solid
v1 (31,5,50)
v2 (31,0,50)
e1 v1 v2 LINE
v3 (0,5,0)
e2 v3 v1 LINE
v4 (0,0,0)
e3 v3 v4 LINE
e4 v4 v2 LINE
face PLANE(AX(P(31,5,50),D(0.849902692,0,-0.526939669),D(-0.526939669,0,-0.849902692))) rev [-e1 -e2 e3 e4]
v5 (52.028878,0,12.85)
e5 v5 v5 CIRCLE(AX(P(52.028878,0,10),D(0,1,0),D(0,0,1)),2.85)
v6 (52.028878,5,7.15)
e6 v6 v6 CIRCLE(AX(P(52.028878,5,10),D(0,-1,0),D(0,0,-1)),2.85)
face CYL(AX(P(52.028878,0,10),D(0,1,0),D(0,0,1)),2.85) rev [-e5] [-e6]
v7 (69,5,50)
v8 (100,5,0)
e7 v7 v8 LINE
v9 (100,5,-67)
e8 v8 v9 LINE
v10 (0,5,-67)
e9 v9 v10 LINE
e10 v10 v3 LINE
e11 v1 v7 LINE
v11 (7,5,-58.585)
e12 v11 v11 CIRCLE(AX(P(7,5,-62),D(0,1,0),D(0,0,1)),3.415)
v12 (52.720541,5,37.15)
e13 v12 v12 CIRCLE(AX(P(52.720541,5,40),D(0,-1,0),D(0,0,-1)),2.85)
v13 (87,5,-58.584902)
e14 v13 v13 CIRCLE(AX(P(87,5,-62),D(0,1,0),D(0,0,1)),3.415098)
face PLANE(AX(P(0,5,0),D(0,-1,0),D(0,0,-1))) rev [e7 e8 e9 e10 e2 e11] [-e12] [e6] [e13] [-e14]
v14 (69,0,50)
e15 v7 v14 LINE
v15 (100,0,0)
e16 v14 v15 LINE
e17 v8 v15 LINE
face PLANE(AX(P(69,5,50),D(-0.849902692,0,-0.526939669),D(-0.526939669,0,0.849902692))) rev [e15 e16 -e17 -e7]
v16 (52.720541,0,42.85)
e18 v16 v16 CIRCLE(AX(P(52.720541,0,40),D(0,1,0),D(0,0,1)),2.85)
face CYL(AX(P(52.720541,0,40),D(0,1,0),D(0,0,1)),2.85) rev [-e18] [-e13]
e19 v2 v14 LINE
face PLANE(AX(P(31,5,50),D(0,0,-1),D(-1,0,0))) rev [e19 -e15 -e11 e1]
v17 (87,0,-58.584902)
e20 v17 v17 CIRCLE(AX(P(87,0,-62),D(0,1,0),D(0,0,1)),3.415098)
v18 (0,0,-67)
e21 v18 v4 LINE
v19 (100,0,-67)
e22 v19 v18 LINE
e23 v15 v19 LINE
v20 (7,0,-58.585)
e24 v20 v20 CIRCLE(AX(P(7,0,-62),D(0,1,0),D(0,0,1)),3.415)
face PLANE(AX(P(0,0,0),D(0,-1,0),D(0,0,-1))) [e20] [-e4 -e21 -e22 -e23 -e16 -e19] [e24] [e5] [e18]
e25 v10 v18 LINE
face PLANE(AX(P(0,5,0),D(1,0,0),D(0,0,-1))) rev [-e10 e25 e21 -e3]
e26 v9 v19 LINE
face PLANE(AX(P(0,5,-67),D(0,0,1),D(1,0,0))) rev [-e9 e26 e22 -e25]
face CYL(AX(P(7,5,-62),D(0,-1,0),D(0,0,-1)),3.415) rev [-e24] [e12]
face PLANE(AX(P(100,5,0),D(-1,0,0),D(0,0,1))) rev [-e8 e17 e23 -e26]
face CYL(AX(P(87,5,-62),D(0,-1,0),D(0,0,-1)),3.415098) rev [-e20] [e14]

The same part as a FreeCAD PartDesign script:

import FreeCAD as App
import Part
import Sketcher


def add_polygon(sketch, points):
    """Adds a closed chain of lines whose ends are joined by coincident constraints."""
    first, n = sketch.GeometryCount, len(points)
    for a, b in zip(points, points[1:] + points[:1]):
        sketch.addGeometry(Part.LineSegment(App.Vector(*a, 0), App.Vector(*b, 0)), False)
    for i in range(n):
        sketch.addConstraint(Sketcher.Constraint("Coincident", first + i, 2, first + (i + 1) % n, 1))

doc = App.newDocument("Part")
params = doc.addObject("Spreadsheet::Sheet", "Params")
for row, (alias, value) in enumerate([
    ("sketch1_diameter", "6.83 mm"),
    ("sketch1_width", "38 mm"),
    ("sketch1_width2", "100 mm"),
    ("sketch1_height", "67 mm"),
    ("pad1_length", "5 mm"),
    ("sketch2_diameter", "5.7 mm"),
], start=1):
    params.set(f"A{row}", alias)
    params.set(f"B{row}", "=" + value)
    params.setAlias(f"B{row}", alias)

body = doc.addObject("PartDesign::Body", "Body")

# Sketch on XZ plane
sketch1 = body.newObject("Sketcher::SketchObject", "Sketch")
sketch1.AttachmentSupport = (doc.getObject("XZ_Plane"), [""])
sketch1.MapMode = "FlatFace"
add_polygon(sketch1, [(0, -67), (0, 0), (31, 50), (69, 50), (100, 0), (100, -67)])  # lines 0-5
sketch1.addGeometry(Part.Circle(App.Vector(87, -62, 0), App.Vector(0, 0, 1), 3.4), False)  # 6
sketch1.addGeometry(Part.Circle(App.Vector(7, -62, 0), App.Vector(0, 0, 1), 3.4), False)  # 7
sketch1.addConstraint([
    Sketcher.Constraint("Vertical", 0),
    Sketcher.Constraint("Horizontal", 2),
    Sketcher.Constraint("Vertical", 4),
    Sketcher.Constraint("Horizontal", 5),
    Sketcher.Constraint("Coincident", 0, 2, -1, 1),
    Sketcher.Constraint("PointOnObject", 3, 2, -1),
    Sketcher.Constraint("Horizontal", 6, 3, 7, 3),
    Sketcher.Constraint("Equal", 1, 3),
    Sketcher.Constraint("Diameter", 7, 6.83),
    Sketcher.Constraint("DistanceX", 2, 1, 2, 2, 38.0),
    Sketcher.Constraint("DistanceX", 5, 2, 5, 1, 100.0),
    Sketcher.Constraint("DistanceY", 0, 1, 0, 2, 67.0),
    Sketcher.Constraint("DistanceX", -1, 1, 6, 3, 87.0),
    Sketcher.Constraint("DistanceY", 6, 3, -1, 1, 62.0),
    Sketcher.Constraint("DistanceX", -1, 1, 7, 3, 7.0),
    Sketcher.Constraint("DistanceY", -1, 1, 1, 2, 50.0),
    Sketcher.Constraint("Diameter", 6, 6.830196),
])
sketch1.setExpression("Constraints[14]", "Params.sketch1_diameter")
sketch1.setExpression("Constraints[15]", "Params.sketch1_width")
sketch1.setExpression("Constraints[16]", "Params.sketch1_width2")
sketch1.setExpression("Constraints[17]", "Params.sketch1_height")
pad1 = body.newObject("PartDesign::Pad", "Pad")
pad1.Profile = sketch1
pad1.setExpression("Length", "Params.pad1_length")
pad1.Reversed = True

# Sketch on XZ plane
sketch2 = body.newObject("Sketcher::SketchObject", "Sketch001")
sketch2.AttachmentSupport = (doc.getObject("XZ_Plane"), [""])
sketch2.MapMode = "FlatFace"
sketch2.AttachmentOffset = App.Placement(App.Vector(0, 0, -5), App.Rotation())
sketch2.addGeometry([
    Part.Circle(App.Vector(52.7, 40, 0), App.Vector(0, 0, 1), 2.9),
    Part.Circle(App.Vector(52, 10, 0), App.Vector(0, 0, 1), 2.9),
], False)
sketch2.addConstraint([
    Sketcher.Constraint("Equal", 0, 1),
    Sketcher.Constraint("Diameter", 0, 5.7),
    Sketcher.Constraint("DistanceY", -1, 1, 0, 3, 40.0),
    Sketcher.Constraint("DistanceY", -1, 1, 1, 3, 10.0),
    Sketcher.Constraint("DistanceX", -1, 1, 0, 3, 52.720541),
    Sketcher.Constraint("DistanceX", -1, 1, 1, 3, 52.028878),
])
sketch2.setExpression("Constraints[1]", "Params.sketch2_diameter")
pocket1 = body.newObject("PartDesign::Pocket", "Pocket")
pocket1.Profile = sketch2
pocket1.Type = "ThroughAll"
pocket1.Midplane = True

doc.recompute()
